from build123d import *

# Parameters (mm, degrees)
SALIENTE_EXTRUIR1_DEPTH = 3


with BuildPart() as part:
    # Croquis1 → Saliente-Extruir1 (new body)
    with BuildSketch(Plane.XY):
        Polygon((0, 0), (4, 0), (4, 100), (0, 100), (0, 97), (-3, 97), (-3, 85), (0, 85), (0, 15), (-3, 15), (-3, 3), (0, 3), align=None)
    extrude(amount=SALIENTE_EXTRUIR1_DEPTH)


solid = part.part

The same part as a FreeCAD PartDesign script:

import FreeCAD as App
import Part
import Sketcher
from FreeCAD import Vector
Q = App.Units.Quantity

doc = App.newDocument("Part")
body = doc.addObject("PartDesign::Body", "Body")

# Sketch on XY plane
sketch1 = body.newObject("Sketcher::SketchObject", "Sketch")
sketch1.AttachmentSupport = (doc.getObject("XY_Plane"), [""])
sketch1.MapMode = "FlatFace"
sketch1.addGeometry([
    Part.LineSegment(Vector(0, 0, 0), Vector(4, 0, 0)),  # 0
    Part.LineSegment(Vector(4, 0, 0), Vector(4, 100, 0)),  # 1
    Part.LineSegment(Vector(4, 100, 0), Vector(0, 100, 0)),  # 2
    Part.LineSegment(Vector(0, 100, 0), Vector(0, 97, 0)),  # 3
    Part.LineSegment(Vector(0, 97, 0), Vector(-3, 97, 0)),  # 4
    Part.LineSegment(Vector(-3, 97, 0), Vector(-3, 85, 0)),  # 5
    Part.LineSegment(Vector(-3, 85, 0), Vector(0, 85, 0)),  # 6
    Part.LineSegment(Vector(0, 85, 0), Vector(0, 15, 0)),  # 7
    Part.LineSegment(Vector(0, 15, 0), Vector(-3, 15, 0)),  # 8
    Part.LineSegment(Vector(-3, 15, 0), Vector(-3, 3, 0)),  # 9
    Part.LineSegment(Vector(-3, 3, 0), Vector(0, 3, 0)),  # 10
    Part.LineSegment(Vector(0, 3, 0), Vector(0, 0, 0)),  # 11
], False)
sketch1.addConstraint([
    Sketcher.Constraint("Coincident", 0, 2, 1, 1),
    Sketcher.Constraint("Coincident", 1, 2, 2, 1),
    Sketcher.Constraint("Coincident", 2, 2, 3, 1),
    Sketcher.Constraint("Coincident", 3, 2, 4, 1),
    Sketcher.Constraint("Coincident", 4, 2, 5, 1),
    Sketcher.Constraint("Coincident", 5, 2, 6, 1),
    Sketcher.Constraint("Coincident", 6, 2, 7, 1),
    Sketcher.Constraint("Coincident", 7, 2, 8, 1),
    Sketcher.Constraint("Coincident", 8, 2, 9, 1),
    Sketcher.Constraint("Coincident", 9, 2, 10, 1),
    Sketcher.Constraint("Coincident", 10, 2, 11, 1),
    Sketcher.Constraint("Coincident", 11, 2, 0, 1),
    Sketcher.Constraint("Horizontal", 0),
    Sketcher.Constraint("Vertical", 1),
    Sketcher.Constraint("Horizontal", 2),
    Sketcher.Constraint("Vertical", 3),
    Sketcher.Constraint("Horizontal", 4),
    Sketcher.Constraint("Vertical", 5),
    Sketcher.Constraint("Horizontal", 6),
    Sketcher.Constraint("Vertical", 7),
    Sketcher.Constraint("Horizontal", 8),
    Sketcher.Constraint("Vertical", 9),
    Sketcher.Constraint("Horizontal", 10),
    Sketcher.Constraint("Vertical", 11),
    Sketcher.Constraint("Coincident", 11, 2, -1, 1),
    Sketcher.Constraint("PointOnObject", 2, 2, -2),
    Sketcher.Constraint("PointOnObject", 6, 2, -2),
    Sketcher.Constraint("Vertical", 5, 2, 8, 2),
    Sketcher.Constraint("Equal", 10, 3),
    Sketcher.Constraint("Equal", 5, 9),
    Sketcher.Constraint("Equal", 3, 11),
    Sketcher.Constraint("DistanceX", 0, 1, 0, 2, Q("4 mm")),
    Sketcher.Constraint("DistanceX", 4, 2, 4, 1, Q("3 mm")),
    Sketcher.Constraint("DistanceY", 1, 1, 1, 2, Q("100 mm")),
    Sketcher.Constraint("DistanceY", 5, 2, 5, 1, Q("12 mm")),
])
pad1 = body.newObject("PartDesign::Pad", "Pad")
pad1.Profile = sketch1
pad1.Length = 3

doc.recompute()
